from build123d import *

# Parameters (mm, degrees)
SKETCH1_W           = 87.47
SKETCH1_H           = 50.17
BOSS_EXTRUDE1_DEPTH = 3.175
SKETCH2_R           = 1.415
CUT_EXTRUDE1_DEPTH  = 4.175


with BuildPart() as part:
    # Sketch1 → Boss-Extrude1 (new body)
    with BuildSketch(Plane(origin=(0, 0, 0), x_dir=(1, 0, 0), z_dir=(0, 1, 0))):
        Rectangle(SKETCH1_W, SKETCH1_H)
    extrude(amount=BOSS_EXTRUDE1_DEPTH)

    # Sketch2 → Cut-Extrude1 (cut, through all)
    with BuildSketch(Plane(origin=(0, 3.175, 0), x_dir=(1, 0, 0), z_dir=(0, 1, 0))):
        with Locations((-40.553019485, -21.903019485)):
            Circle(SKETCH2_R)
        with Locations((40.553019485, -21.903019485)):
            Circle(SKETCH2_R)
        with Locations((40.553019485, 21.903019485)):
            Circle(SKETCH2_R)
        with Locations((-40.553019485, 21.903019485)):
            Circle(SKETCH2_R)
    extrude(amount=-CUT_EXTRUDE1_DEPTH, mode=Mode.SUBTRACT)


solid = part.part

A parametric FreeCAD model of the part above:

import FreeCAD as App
import Part
import Sketcher

V = App.Vector
Q = App.Units.Quantity


def add_polygon(sketch, points):
    """Adds a closed chain of lines whose ends are joined by coincident constraints."""
    first, n = sketch.GeometryCount, len(points)
    for a, b in zip(points, points[1:] + points[:1]):
        sketch.addGeometry(Part.LineSegment(App.Vector(*a, 0), App.Vector(*b, 0)), False)
    for i in range(n):
        sketch.addConstraint(Sketcher.Constraint("Coincident", first + i, 2, first + (i + 1) % n, 1))

doc = App.newDocument("Part")
body = doc.addObject("PartDesign::Body", "Body")

# Sketch on XZ plane
sketch1 = doc.addObject("Sketcher::SketchObject", "Sketch")
body.addObject(sketch1)
sketch1.AttachmentSupport = (doc.XZ_Plane, [""])
sketch1.MapMode = "FlatFace"
add_polygon(sketch1, [(-44, -25), (-44, 25), (44, 25), (44, -25)])  # lines 0-3
sketch1.addConstraint([
    Sketcher.Constraint("Vertical", 0),
    Sketcher.Constraint("Horizontal", 1),
    Sketcher.Constraint("Vertical", 2),
    Sketcher.Constraint("Horizontal", 3),
    Sketcher.Constraint("Symmetric", 0, 2, 2, 2, -1, 1),
    Sketcher.Constraint("DistanceX", 1, 1, 1, 2, Q("87.47 mm")),
    Sketcher.Constraint("DistanceY", 0, 1, 0, 2, Q("50.17 mm")),
])
pad1 = doc.addObject("PartDesign::Pad", "Pad")
body.addObject(pad1)
pad1.Profile = sketch1
pad1.Length = Q("0.125 in")
pad1.Reversed = True

# Sketch on XZ plane
sketch2 = doc.addObject("Sketcher::SketchObject", "Sketch001")
body.addObject(sketch2)
sketch2.AttachmentSupport = (doc.XZ_Plane, [""])
sketch2.MapMode = "FlatFace"
sketch2.AttachmentOffset = App.Placement(V(0, 0, -0.125 * 25.4), App.Rotation())
sketch2.addGeometry([
    Part.Circle(V(-40.6, 21.9, 0), V(0, 0, 1), 1.4),
    Part.Circle(V(40.6, 21.9, 0), V(0, 0, 1), 1.4),
    Part.Circle(V(40.6, -21.9, 0), V(0, 0, 1), 1.4),
    Part.Circle(V(-40.6, -21.9, 0), V(0, 0, 1), 1.4),
], False)
sketch2.addConstraint([
    Sketcher.Constraint("Equal", 0, 1),
    Sketcher.Constraint("Equal", 1, 2),
    Sketcher.Constraint("Equal", 2, 3),
    Sketcher.Constraint("Symmetric", 0, 3, 2, 3, -1, 1),
    Sketcher.Constraint("Symmetric", 1, 3, 3, 3, -1, 1),
    Sketcher.Constraint("Symmetric", 0, 3, 1, 3, -2),
    Sketcher.Constraint("Diameter", 0, Q("2.83 mm")),
    Sketcher.Constraint("DistanceX", 0, 3, -1, 1, Q("40.553019 mm")),
    Sketcher.Constraint("DistanceY", -1, 1, 0, 3, Q("21.903019 mm")),
])
pocket1 = doc.addObject("PartDesign::Pocket", "Pocket")
body.addObject(pocket1)
pocket1.Profile = sketch2
pocket1.Type = "ThroughAll"
pocket1.Reversed = True

doc.recompute()
